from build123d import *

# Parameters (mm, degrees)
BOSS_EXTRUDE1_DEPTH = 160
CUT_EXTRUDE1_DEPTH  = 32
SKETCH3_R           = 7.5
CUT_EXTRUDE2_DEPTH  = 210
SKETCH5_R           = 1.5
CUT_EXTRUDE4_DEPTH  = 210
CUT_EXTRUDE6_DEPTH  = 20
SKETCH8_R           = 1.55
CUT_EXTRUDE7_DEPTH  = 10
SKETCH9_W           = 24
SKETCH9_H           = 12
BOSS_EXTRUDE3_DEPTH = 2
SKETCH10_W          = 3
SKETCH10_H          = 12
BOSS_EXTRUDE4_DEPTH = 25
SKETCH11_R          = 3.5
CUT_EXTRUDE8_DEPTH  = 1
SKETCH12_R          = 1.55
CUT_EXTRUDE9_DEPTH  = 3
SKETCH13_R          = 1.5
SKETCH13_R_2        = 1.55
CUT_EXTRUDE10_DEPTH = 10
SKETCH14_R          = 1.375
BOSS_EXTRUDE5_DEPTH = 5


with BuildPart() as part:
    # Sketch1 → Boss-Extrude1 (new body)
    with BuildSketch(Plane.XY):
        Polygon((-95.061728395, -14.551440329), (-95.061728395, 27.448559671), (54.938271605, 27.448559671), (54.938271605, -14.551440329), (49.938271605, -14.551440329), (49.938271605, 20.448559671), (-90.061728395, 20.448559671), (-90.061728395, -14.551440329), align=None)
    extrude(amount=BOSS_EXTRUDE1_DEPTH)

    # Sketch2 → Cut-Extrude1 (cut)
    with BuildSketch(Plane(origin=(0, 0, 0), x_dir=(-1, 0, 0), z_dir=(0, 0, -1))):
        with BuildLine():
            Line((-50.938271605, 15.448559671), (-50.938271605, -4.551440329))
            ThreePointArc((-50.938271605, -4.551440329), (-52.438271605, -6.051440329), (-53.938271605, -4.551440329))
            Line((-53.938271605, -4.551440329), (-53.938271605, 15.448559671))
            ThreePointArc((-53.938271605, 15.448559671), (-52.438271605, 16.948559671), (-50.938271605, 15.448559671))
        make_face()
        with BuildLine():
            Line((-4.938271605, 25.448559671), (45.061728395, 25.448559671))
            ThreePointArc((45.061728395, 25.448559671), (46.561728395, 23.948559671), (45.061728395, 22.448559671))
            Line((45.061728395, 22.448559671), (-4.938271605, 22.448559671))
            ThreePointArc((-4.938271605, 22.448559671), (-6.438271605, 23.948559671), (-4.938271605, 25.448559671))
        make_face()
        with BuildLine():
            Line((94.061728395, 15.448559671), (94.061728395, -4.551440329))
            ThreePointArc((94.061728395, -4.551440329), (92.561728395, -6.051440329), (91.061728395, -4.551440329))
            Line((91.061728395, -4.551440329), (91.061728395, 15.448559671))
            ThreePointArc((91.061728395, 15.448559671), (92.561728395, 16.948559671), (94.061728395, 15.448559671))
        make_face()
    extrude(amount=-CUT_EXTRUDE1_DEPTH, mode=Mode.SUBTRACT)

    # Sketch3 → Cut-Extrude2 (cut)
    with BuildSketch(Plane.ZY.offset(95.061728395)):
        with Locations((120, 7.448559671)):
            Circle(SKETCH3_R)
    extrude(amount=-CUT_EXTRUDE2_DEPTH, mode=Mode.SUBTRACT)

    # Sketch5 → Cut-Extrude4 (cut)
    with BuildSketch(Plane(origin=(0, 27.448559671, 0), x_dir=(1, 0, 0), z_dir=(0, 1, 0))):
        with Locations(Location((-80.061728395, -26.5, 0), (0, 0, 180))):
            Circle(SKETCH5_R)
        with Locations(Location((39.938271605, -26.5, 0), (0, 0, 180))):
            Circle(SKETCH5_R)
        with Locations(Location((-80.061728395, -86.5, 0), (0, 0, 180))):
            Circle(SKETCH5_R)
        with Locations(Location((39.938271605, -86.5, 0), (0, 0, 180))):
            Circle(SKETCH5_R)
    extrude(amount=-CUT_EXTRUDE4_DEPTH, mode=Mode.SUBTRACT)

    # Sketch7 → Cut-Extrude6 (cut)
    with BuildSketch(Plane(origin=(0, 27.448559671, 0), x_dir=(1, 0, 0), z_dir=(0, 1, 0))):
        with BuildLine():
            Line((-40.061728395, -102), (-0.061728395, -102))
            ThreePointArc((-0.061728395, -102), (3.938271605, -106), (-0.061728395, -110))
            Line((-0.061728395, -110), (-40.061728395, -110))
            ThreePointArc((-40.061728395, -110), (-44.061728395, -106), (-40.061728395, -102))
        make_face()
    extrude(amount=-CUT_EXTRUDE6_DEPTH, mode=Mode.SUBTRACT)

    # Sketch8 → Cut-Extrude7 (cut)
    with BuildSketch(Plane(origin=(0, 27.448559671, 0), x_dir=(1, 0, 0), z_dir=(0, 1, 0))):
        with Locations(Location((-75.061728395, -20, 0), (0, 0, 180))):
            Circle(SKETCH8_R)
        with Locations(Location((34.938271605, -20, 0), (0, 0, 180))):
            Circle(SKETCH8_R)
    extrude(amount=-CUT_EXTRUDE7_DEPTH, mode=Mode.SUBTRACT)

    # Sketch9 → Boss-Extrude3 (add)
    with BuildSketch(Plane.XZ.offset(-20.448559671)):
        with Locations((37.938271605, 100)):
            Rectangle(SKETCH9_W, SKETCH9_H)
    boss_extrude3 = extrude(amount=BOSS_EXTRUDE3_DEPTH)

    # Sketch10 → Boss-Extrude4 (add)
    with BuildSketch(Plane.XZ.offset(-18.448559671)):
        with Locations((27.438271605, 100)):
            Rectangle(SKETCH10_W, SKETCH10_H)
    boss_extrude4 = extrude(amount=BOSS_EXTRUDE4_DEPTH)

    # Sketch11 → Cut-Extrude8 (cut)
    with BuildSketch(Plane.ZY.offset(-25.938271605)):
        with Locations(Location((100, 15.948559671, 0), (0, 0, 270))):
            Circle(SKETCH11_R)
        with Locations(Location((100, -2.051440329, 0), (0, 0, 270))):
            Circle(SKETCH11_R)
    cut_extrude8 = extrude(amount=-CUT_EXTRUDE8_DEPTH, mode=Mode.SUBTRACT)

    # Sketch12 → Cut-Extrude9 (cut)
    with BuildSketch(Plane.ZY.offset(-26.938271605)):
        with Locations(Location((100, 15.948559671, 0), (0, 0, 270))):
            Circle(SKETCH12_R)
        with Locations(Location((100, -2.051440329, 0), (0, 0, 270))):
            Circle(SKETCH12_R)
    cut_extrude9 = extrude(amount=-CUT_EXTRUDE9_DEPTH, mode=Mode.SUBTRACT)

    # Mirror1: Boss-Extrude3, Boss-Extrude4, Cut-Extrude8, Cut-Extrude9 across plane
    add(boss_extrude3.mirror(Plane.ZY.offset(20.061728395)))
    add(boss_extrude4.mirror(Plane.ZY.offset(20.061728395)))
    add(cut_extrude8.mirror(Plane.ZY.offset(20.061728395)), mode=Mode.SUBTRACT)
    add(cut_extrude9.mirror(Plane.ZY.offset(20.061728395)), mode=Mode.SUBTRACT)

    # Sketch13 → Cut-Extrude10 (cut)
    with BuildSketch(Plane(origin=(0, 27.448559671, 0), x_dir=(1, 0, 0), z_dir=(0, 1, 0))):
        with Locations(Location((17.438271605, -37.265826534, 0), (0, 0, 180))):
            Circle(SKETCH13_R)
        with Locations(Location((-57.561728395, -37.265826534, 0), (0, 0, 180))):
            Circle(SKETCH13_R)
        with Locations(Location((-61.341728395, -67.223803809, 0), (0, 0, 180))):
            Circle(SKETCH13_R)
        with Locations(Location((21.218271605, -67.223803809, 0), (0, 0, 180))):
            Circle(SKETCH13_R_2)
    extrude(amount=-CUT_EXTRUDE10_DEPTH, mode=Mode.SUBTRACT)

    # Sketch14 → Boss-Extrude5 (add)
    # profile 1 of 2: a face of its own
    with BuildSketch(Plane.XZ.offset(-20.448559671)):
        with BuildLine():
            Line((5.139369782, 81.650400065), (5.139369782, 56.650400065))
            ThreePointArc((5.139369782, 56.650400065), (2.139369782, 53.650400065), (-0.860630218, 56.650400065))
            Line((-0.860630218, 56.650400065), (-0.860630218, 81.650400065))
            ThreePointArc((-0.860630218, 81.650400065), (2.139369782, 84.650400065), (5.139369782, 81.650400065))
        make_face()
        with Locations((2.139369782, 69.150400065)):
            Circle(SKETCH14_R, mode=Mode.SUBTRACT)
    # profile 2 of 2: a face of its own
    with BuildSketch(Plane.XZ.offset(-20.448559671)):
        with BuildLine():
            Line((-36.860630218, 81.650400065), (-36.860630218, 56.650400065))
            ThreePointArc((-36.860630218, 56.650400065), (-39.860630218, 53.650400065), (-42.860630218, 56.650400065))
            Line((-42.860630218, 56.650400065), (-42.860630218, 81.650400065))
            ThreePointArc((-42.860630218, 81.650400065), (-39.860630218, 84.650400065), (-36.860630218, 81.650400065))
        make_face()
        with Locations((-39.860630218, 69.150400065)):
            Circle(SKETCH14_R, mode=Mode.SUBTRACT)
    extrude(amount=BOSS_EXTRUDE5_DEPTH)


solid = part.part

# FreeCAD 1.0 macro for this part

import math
import FreeCAD as App
import Part
import Sketcher

doc = App.newDocument("Part")
body = doc.addObject("PartDesign::Body", "Body")

# Sketch on XY plane
sketch1 = body.newObject("Sketcher::SketchObject", "Sketch")
sketch1.AttachmentSupport = (doc.getObject("XY_Plane"), [""])
sketch1.MapMode = "FlatFace"
sketch1.addGeometry([
    Part.LineSegment(App.Vector(-95.061728, 27.44856, 0), App.Vector(-95.061728, -14.55144, 0)),  # 0
    Part.LineSegment(App.Vector(-95.061728, -14.55144, 0), App.Vector(-90.061728, -14.55144, 0)),  # 1
    Part.LineSegment(App.Vector(-90.061728, -14.55144, 0), App.Vector(-90.061728, 20.44856, 0)),  # 2
    Part.LineSegment(App.Vector(-90.061728, 20.44856, 0), App.Vector(49.938272, 20.44856, 0)),  # 3
    Part.LineSegment(App.Vector(49.938272, 20.44856, 0), App.Vector(49.938272, -14.55144, 0)),  # 4
    Part.LineSegment(App.Vector(49.938272, -14.55144, 0), App.Vector(54.938272, -14.55144, 0)),  # 5
    Part.LineSegment(App.Vector(54.938272, -14.55144, 0), App.Vector(54.938272, 27.44856, 0)),  # 6
    Part.LineSegment(App.Vector(54.938272, 27.44856, 0), App.Vector(-95.061728, 27.44856, 0)),  # 7
], False)
sketch1.addConstraint([
    Sketcher.Constraint("Coincident", 0, 2, 1, 1),
    Sketcher.Constraint("Coincident", 1, 2, 2, 1),
    Sketcher.Constraint("Coincident", 2, 2, 3, 1),
    Sketcher.Constraint("Coincident", 3, 2, 4, 1),
    Sketcher.Constraint("Coincident", 4, 2, 5, 1),
    Sketcher.Constraint("Coincident", 5, 2, 6, 1),
    Sketcher.Constraint("Coincident", 6, 2, 7, 1),
    Sketcher.Constraint("Coincident", 7, 2, 0, 1),
    Sketcher.Constraint("Vertical", 0),
    Sketcher.Constraint("Horizontal", 1),
    Sketcher.Constraint("Vertical", 2),
    Sketcher.Constraint("Horizontal", 3),
    Sketcher.Constraint("Vertical", 4),
    Sketcher.Constraint("Horizontal", 5),
    Sketcher.Constraint("Vertical", 6),
    Sketcher.Constraint("Horizontal", 7),
    Sketcher.Constraint("Horizontal", 1, 2, 4, 2),
    Sketcher.Constraint("Equal", 1, 5),
    Sketcher.Constraint("DistanceX", 1, 1, 1, 2, 5.0),
    Sketcher.Constraint("DistanceX", 3, 1, 3, 2, 140.0),
    Sketcher.Constraint("DistanceY", 0, 2, 0, 1, 42.0),
    Sketcher.Constraint("DistanceY", 2, 1, 2, 2, 35.0),
    Sketcher.Constraint("DistanceX", 0, 2, -1, 1, 95.061728),
    Sketcher.Constraint("DistanceY", 0, 2, -1, 1, 14.55144),
])
pad1 = body.newObject("PartDesign::Pad", "Pad")
pad1.Profile = sketch1
pad1.Length = 160

# Sketch on XY plane
sketch2 = body.newObject("Sketcher::SketchObject", "Sketch001")
sketch2.AttachmentSupport = (doc.getObject("XY_Plane"), [""])
sketch2.MapMode = "FlatFace"
sketch2.addGeometry([
    Part.LineSegment(App.Vector(50.938272, -4.55144, 0), App.Vector(50.938272, 15.44856, 0)),  # 0
    Part.ArcOfCircle(Part.Circle(App.Vector(52.438272, 15.44856, 0), App.Vector(0, 0, 1), 1.5), math.radians(0), math.radians(180)),  # 1
    Part.LineSegment(App.Vector(53.938272, 15.44856, 0), App.Vector(53.938272, -4.55144, 0)),  # 2
    Part.ArcOfCircle(Part.Circle(App.Vector(52.438272, -4.55144, 0), App.Vector(0, 0, 1), 1.5), math.radians(180), math.radians(360)),  # 3
    Part.LineSegment(App.Vector(-45.061728, 25.44856, 0), App.Vector(4.938272, 25.44856, 0)),  # 4
    Part.ArcOfCircle(Part.Circle(App.Vector(4.938272, 23.94856, 0), App.Vector(0, 0, 1), 1.5), math.radians(-90), math.radians(90)),  # 5
    Part.LineSegment(App.Vector(4.938272, 22.44856, 0), App.Vector(-45.061728, 22.44856, 0)),  # 6
    Part.ArcOfCircle(Part.Circle(App.Vector(-45.061728, 23.94856, 0), App.Vector(0, 0, 1), 1.5), math.radians(90), math.radians(270)),  # 7
    Part.LineSegment(App.Vector(-94.061728, -4.55144, 0), App.Vector(-94.061728, 15.44856, 0)),  # 8
    Part.ArcOfCircle(Part.Circle(App.Vector(-92.561728, 15.44856, 0), App.Vector(0, 0, 1), 1.5), math.radians(0), math.radians(180)),  # 9
    Part.LineSegment(App.Vector(-91.061728, 15.44856, 0), App.Vector(-91.061728, -4.55144, 0)),  # 10
    Part.ArcOfCircle(Part.Circle(App.Vector(-92.561728, -4.55144, 0), App.Vector(0, 0, 1), 1.5), math.radians(180), math.radians(360)),  # 11
], False)
sketch2.addConstraint([
    Sketcher.Constraint("Tangent", 0, 2, 1, 2),
    Sketcher.Constraint("Tangent", 1, 1, 2, 1),
    Sketcher.Constraint("Tangent", 2, 2, 3, 2),
    Sketcher.Constraint("Tangent", 3, 1, 0, 1),
    Sketcher.Constraint("Tangent", 4, 2, 5, 2),
    Sketcher.Constraint("Tangent", 5, 1, 6, 1),
    Sketcher.Constraint("Tangent", 6, 2, 7, 2),
    Sketcher.Constraint("Tangent", 7, 1, 4, 1),
    Sketcher.Constraint("Tangent", 8, 2, 9, 2),
    Sketcher.Constraint("Tangent", 9, 1, 10, 1),
    Sketcher.Constraint("Tangent", 10, 2, 11, 2),
    Sketcher.Constraint("Tangent", 11, 1, 8, 1),
    Sketcher.Constraint("Vertical", 0),
    Sketcher.Constraint("Vertical", 2),
    Sketcher.Constraint("Horizontal", 4),
    Sketcher.Constraint("Horizontal", 6),
    Sketcher.Constraint("Vertical", 8),
    Sketcher.Constraint("Vertical", 10),
    Sketcher.Constraint("Equal", 3, 5),
    Sketcher.Constraint("Equal", 7, 9),
    Sketcher.Constraint("Horizontal", 1, 3, 9, 3),
    Sketcher.Constraint("Horizontal", 3, 3, 11, 3),
    Sketcher.Constraint("Radius", 1, 1.5),
    Sketcher.Constraint("DistanceX", 4, 1, 4, 2, 50.0),
    Sketcher.Constraint("DistanceY", 0, 1, 0, 2, 20.0),
    Sketcher.Constraint("DistanceX", 9, 3, 1, 3, 145.0),
    Sketcher.Constraint("DistanceX", 5, 3, 0, 2, 46.0),
    Sketcher.Constraint("DistanceY", 0, 2, 4, 2, 10.0),
    Sketcher.Constraint("DistanceX", -1, 1, 1, 3, 52.438272),
    Sketcher.Constraint("DistanceY", -1, 1, 1, 3, 15.44856),
])
pocket1 = body.newObject("PartDesign::Pocket", "Pocket")
pocket1.Profile = sketch2
pocket1.Length = 32
pocket1.Reversed = True

# Sketch on YZ plane
sketch3 = body.newObject("Sketcher::SketchObject", "Sketch002")
sketch3.AttachmentSupport = (doc.getObject("YZ_Plane"), [""])
sketch3.MapMode = "FlatFace"
sketch3.AttachmentOffset = App.Placement(App.Vector(0, 0, -95.061728), App.Rotation())
sketch3.addGeometry(Part.Circle(App.Vector(7.44856, 120, 0), App.Vector(0, 0, 1), 7.5), False)
sketch3.addConstraint([
    Sketcher.Constraint("Diameter", 0, 15.0),
    Sketcher.Constraint("DistanceY", -1, 1, 0, 3, 120.0),
    Sketcher.Constraint("DistanceX", -1, 1, 0, 3, 7.44856),
])
pocket2 = body.newObject("PartDesign::Pocket", "Pocket001")
pocket2.Profile = sketch3
pocket2.Length = 210
pocket2.Reversed = True

# Sketch on XZ plane
sketch4 = body.newObject("Sketcher::SketchObject", "Sketch003")
sketch4.AttachmentSupport = (doc.getObject("XZ_Plane"), [""])
sketch4.MapMode = "FlatFace"
sketch4.AttachmentOffset = App.Placement(App.Vector(0, 0, -27.44856), App.Rotation())
sketch4.addGeometry([
    Part.Circle(App.Vector(-80.061728, 26.5, 0), App.Vector(0, 0, 1), 1.5),
    Part.Circle(App.Vector(39.938272, 26.5, 0), App.Vector(0, 0, 1), 1.5),
    Part.Circle(App.Vector(-80.061728, 86.5, 0), App.Vector(0, 0, 1), 1.5),
    Part.Circle(App.Vector(39.938272, 86.5, 0), App.Vector(0, 0, 1), 1.5),
], False)
sketch4.addConstraint([
    Sketcher.Constraint("Equal", 0, 1),
    Sketcher.Constraint("Equal", 1, 2),
    Sketcher.Constraint("Equal", 2, 3),
    Sketcher.Constraint("Horizontal", 0, 3, 1, 3),
    Sketcher.Constraint("Horizontal", 2, 3, 3, 3),
    Sketcher.Constraint("Vertical", 0, 3, 2, 3),
    Sketcher.Constraint("Vertical", 1, 3, 3, 3),
    Sketcher.Constraint("Diameter", 0, 3.0),
    Sketcher.Constraint("DistanceX", 0, 3, 1, 3, 120.0),
    Sketcher.Constraint("DistanceY", 0, 3, 2, 3, 60.0),
    Sketcher.Constraint("DistanceY", -1, 1, 0, 3, 26.5),
    Sketcher.Constraint("DistanceX", 0, 3, -1, 1, 80.061728),
])
pocket3 = body.newObject("PartDesign::Pocket", "Pocket002")
pocket3.Profile = sketch4
pocket3.Length = 210
pocket3.Reversed = True

# Sketch on XZ plane
sketch5 = body.newObject("Sketcher::SketchObject", "Sketch004")
sketch5.AttachmentSupport = (doc.getObject("XZ_Plane"), [""])
sketch5.MapMode = "FlatFace"
sketch5.AttachmentOffset = App.Placement(App.Vector(0, 0, -27.44856), App.Rotation())
sketch5.addGeometry([
    Part.LineSegment(App.Vector(-0.061728, 102, 0), App.Vector(-40.061728, 102, 0)),
    Part.ArcOfCircle(Part.Circle(App.Vector(-40.061728, 106, 0), App.Vector(0, 0, 1), 4), math.radians(90), math.radians(270)),
    Part.LineSegment(App.Vector(-40.061728, 110, 0), App.Vector(-0.061728, 110, 0)),
    Part.ArcOfCircle(Part.Circle(App.Vector(-0.061728, 106, 0), App.Vector(0, 0, 1), 4), math.radians(-90), math.radians(90)),
], False)
sketch5.addConstraint([
    Sketcher.Constraint("Tangent", 0, 2, 1, 2),
    Sketcher.Constraint("Tangent", 1, 1, 2, 1),
    Sketcher.Constraint("Tangent", 2, 2, 3, 2),
    Sketcher.Constraint("Tangent", 3, 1, 0, 1),
    Sketcher.Constraint("Horizontal", 0),
    Sketcher.Constraint("Horizontal", 2),
    Sketcher.Constraint("Radius", 1, 4.0),
    Sketcher.Constraint("DistanceX", 0, 2, 0, 1, 40.0),
    Sketcher.Constraint("DistanceY", -1, 1, 1, 3, 106.0),
    Sketcher.Constraint("DistanceX", 1, 3, -1, 1, 40.061728),
])
pocket4 = body.newObject("PartDesign::Pocket", "Pocket003")
pocket4.Profile = sketch5
pocket4.Length = 20
pocket4.Reversed = True

# Sketch on XZ plane
sketch6 = body.newObject("Sketcher::SketchObject", "Sketch005")
sketch6.AttachmentSupport = (doc.getObject("XZ_Plane"), [""])
sketch6.MapMode = "FlatFace"
sketch6.AttachmentOffset = App.Placement(App.Vector(0, 0, -27.44856), App.Rotation())
sketch6.addGeometry([
    Part.Circle(App.Vector(-75.061728, 20, 0), App.Vector(0, 0, 1), 1.55),
    Part.Circle(App.Vector(34.938272, 20, 0), App.Vector(0, 0, 1), 1.55),
], False)
sketch6.addConstraint([
    Sketcher.Constraint("Equal", 0, 1),
    Sketcher.Constraint("Horizontal", 0, 3, 1, 3),
    Sketcher.Constraint("Diameter", 0, 3.1),
    Sketcher.Constraint("DistanceY", -1, 1, 0, 3, 20.0),
    Sketcher.Constraint("DistanceX", 0, 3, 1, 3, 110.0),
    Sketcher.Constraint("DistanceX", 0, 3, -1, 1, 75.061728),
])
pocket5 = body.newObject("PartDesign::Pocket", "Pocket004")
pocket5.Profile = sketch6
pocket5.Length = 10
pocket5.Reversed = True

# Sketch on XZ plane
sketch7 = body.newObject("Sketcher::SketchObject", "Sketch006")
sketch7.AttachmentSupport = (doc.getObject("XZ_Plane"), [""])
sketch7.MapMode = "FlatFace"
sketch7.AttachmentOffset = App.Placement(App.Vector(0, 0, -20.44856), App.Rotation())
sketch7.addGeometry([
    Part.LineSegment(App.Vector(25.938272, 106, 0), App.Vector(25.938272, 94, 0)),
    Part.LineSegment(App.Vector(25.938272, 94, 0), App.Vector(49.938272, 94, 0)),
    Part.LineSegment(App.Vector(49.938272, 94, 0), App.Vector(49.938272, 106, 0)),
    Part.LineSegment(App.Vector(49.938272, 106, 0), App.Vector(25.938272, 106, 0)),
], False)
sketch7.addConstraint([
    Sketcher.Constraint("Coincident", 0, 2, 1, 1),
    Sketcher.Constraint("Coincident", 1, 2, 2, 1),
    Sketcher.Constraint("Coincident", 2, 2, 3, 1),
    Sketcher.Constraint("Coincident", 3, 2, 0, 1),
    Sketcher.Constraint("Vertical", 0),
    Sketcher.Constraint("Horizontal", 1),
    Sketcher.Constraint("Vertical", 2),
    Sketcher.Constraint("Horizontal", 3),
    Sketcher.Constraint("DistanceX", 1, 1, 1, 2, 24.0),
    Sketcher.Constraint("DistanceY", 0, 2, 0, 1, 12.0),
    Sketcher.Constraint("DistanceY", -1, 1, 0, 2, 94.0),
    Sketcher.Constraint("DistanceX", -1, 1, 0, 2, 25.938272),
])
pad2 = body.newObject("PartDesign::Pad", "Pad001")
pad2.Profile = sketch7
pad2.Length = 2

# Sketch on XZ plane
sketch8 = body.newObject("Sketcher::SketchObject", "Sketch007")
sketch8.AttachmentSupport = (doc.getObject("XZ_Plane"), [""])
sketch8.MapMode = "FlatFace"
sketch8.AttachmentOffset = App.Placement(App.Vector(0, 0, -18.44856), App.Rotation())
sketch8.addGeometry([
    Part.LineSegment(App.Vector(25.938272, 106, 0), App.Vector(25.938272, 94, 0)),
    Part.LineSegment(App.Vector(25.938272, 94, 0), App.Vector(28.938272, 94, 0)),
    Part.LineSegment(App.Vector(28.938272, 94, 0), App.Vector(28.938272, 106, 0)),
    Part.LineSegment(App.Vector(28.938272, 106, 0), App.Vector(25.938272, 106, 0)),
], False)
sketch8.addConstraint([
    Sketcher.Constraint("Coincident", 0, 2, 1, 1),
    Sketcher.Constraint("Coincident", 1, 2, 2, 1),
    Sketcher.Constraint("Coincident", 2, 2, 3, 1),
    Sketcher.Constraint("Coincident", 3, 2, 0, 1),
    Sketcher.Constraint("Vertical", 0),
    Sketcher.Constraint("Horizontal", 1),
    Sketcher.Constraint("Vertical", 2),
    Sketcher.Constraint("Horizontal", 3),
    Sketcher.Constraint("DistanceX", 1, 1, 1, 2, 3.0),
    Sketcher.Constraint("DistanceY", 0, 2, 0, 1, 12.0),
    Sketcher.Constraint("DistanceY", -1, 1, 0, 2, 94.0),
    Sketcher.Constraint("DistanceX", -1, 1, 0, 2, 25.938272),
])
pad3 = body.newObject("PartDesign::Pad", "Pad002")
pad3.Profile = sketch8
pad3.Length = 25

# Sketch on YZ plane
sketch9 = body.newObject("Sketcher::SketchObject", "Sketch008")
sketch9.AttachmentSupport = (doc.getObject("YZ_Plane"), [""])
sketch9.MapMode = "FlatFace"
sketch9.AttachmentOffset = App.Placement(App.Vector(0, 0, 25.938272), App.Rotation())
sketch9.addGeometry([
    Part.Circle(App.Vector(15.94856, 100, 0), App.Vector(0, 0, 1), 3.5),
    Part.Circle(App.Vector(-2.05144, 100, 0), App.Vector(0, 0, 1), 3.5),
], False)
sketch9.addConstraint([
    Sketcher.Constraint("Equal", 0, 1),
    Sketcher.Constraint("Horizontal", 0, 3, 1, 3),
    Sketcher.Constraint("Diameter", 0, 7.0),
    Sketcher.Constraint("DistanceY", -1, 1, 0, 3, 100.0),
    Sketcher.Constraint("DistanceX", 1, 3, 0, 3, 18.0),
    Sketcher.Constraint("DistanceX", -1, 1, 0, 3, 15.94856),
])
pocket6 = body.newObject("PartDesign::Pocket", "Pocket005")
pocket6.Profile = sketch9
pocket6.Length = 1
pocket6.Reversed = True

# Sketch on YZ plane
sketch10 = body.newObject("Sketcher::SketchObject", "Sketch009")
sketch10.AttachmentSupport = (doc.getObject("YZ_Plane"), [""])
sketch10.MapMode = "FlatFace"
sketch10.AttachmentOffset = App.Placement(App.Vector(0, 0, 26.938272), App.Rotation())
sketch10.addGeometry([
    Part.Circle(App.Vector(15.94856, 100, 0), App.Vector(0, 0, 1), 1.55),
    Part.Circle(App.Vector(-2.05144, 100, 0), App.Vector(0, 0, 1), 1.55),
], False)
sketch10.addConstraint([
    Sketcher.Constraint("Equal", 0, 1),
    Sketcher.Constraint("Horizontal", 0, 3, 1, 3),
    Sketcher.Constraint("Diameter", 0, 3.1),
    Sketcher.Constraint("DistanceY", -1, 1, 0, 3, 100.0),
    Sketcher.Constraint("DistanceX", 1, 3, 0, 3, 18.0),
    Sketcher.Constraint("DistanceX", -1, 1, 0, 3, 15.94856),
])
pocket7 = body.newObject("PartDesign::Pocket", "Pocket006")
pocket7.Profile = sketch10
pocket7.Length = 3
pocket7.Reversed = True
doc.recompute()

datumplane = body.newObject("PartDesign::Plane", "DatumPlane")
datumplane.AttachmentSupport = (doc.getObject("YZ_Plane"), [""])
datumplane.MapMode = "FlatFace"
datumplane.AttachmentOffset = App.Placement(App.Vector(0, 0, -20.061728), App.Rotation())
mirrored = body.newObject("PartDesign::Mirrored", "Mirrored")
mirrored.Originals = [pad2, pad3, pocket6, pocket7]
mirrored.MirrorPlane = (datumplane, [""])
body.Tip = mirrored

# Sketch on XZ plane
sketch11 = body.newObject("Sketcher::SketchObject", "Sketch010")
sketch11.AttachmentSupport = (doc.getObject("XZ_Plane"), [""])
sketch11.MapMode = "FlatFace"
sketch11.AttachmentOffset = App.Placement(App.Vector(0, 0, -27.44856), App.Rotation())
sketch11.addGeometry([
    Part.Circle(App.Vector(17.438272, 37.265827, 0), App.Vector(0, 0, 1), 1.5),
    Part.Circle(App.Vector(-57.561728, 37.265827, 0), App.Vector(0, 0, 1), 1.5),
    Part.Circle(App.Vector(-61.341728, 67.223804, 0), App.Vector(0, 0, 1), 1.5),
    Part.Circle(App.Vector(21.218272, 67.223804, 0), App.Vector(0, 0, 1), 1.55),
], False)
sketch11.addConstraint([
    Sketcher.Constraint("Equal", 0, 1),
    Sketcher.Constraint("Equal", 1, 2),
    Sketcher.Constraint("Horizontal", 0, 3, 1, 3),
    Sketcher.Constraint("Horizontal", 2, 3, 3, 3),
    Sketcher.Constraint("Diameter", 0, 3.0),
    Sketcher.Constraint("Diameter", 3, 3.1),
    Sketcher.Constraint("DistanceX", 1, 3, 0, 3, 75.0),
    Sketcher.Constraint("DistanceX", 2, 3, 1, 3, 3.78),
    Sketcher.Constraint("DistanceX", 0, 3, 3, 3, 3.78),
    Sketcher.Constraint("DistanceX", -1, 1, 0, 3, 17.438272),
    Sketcher.Constraint("DistanceY", -1, 1, 0, 3, 37.265827),
    Sketcher.Constraint("DistanceY", -1, 1, 2, 3, 67.223804),
])
pocket8 = body.newObject("PartDesign::Pocket", "Pocket007")
pocket8.Profile = sketch11
pocket8.Length = 10
pocket8.Reversed = True

# Sketch on XZ plane
sketch12 = body.newObject("Sketcher::SketchObject", "Sketch011")
sketch12.AttachmentSupport = (doc.getObject("XZ_Plane"), [""])
sketch12.MapMode = "FlatFace"
sketch12.AttachmentOffset = App.Placement(App.Vector(0, 0, -20.44856), App.Rotation())
sketch12.addGeometry([
    Part.LineSegment(App.Vector(5.13937, 56.6504, 0), App.Vector(5.13937, 81.6504, 0)),  # 0
    Part.ArcOfCircle(Part.Circle(App.Vector(2.13937, 81.6504, 0), App.Vector(0, 0, 1), 3), math.radians(0), math.radians(180)),  # 1
    Part.LineSegment(App.Vector(-0.86063, 81.6504, 0), App.Vector(-0.86063, 56.6504, 0)),  # 2
    Part.ArcOfCircle(Part.Circle(App.Vector(2.13937, 56.6504, 0), App.Vector(0, 0, 1), 3), math.radians(180), math.radians(360)),  # 3
    Part.Circle(App.Vector(2.13937, 69.1504, 0), App.Vector(0, 0, 1), 1.375),  # 4
    Part.LineSegment(App.Vector(-36.86063, 56.6504, 0), App.Vector(-36.86063, 81.6504, 0)),  # 5
    Part.ArcOfCircle(Part.Circle(App.Vector(-39.86063, 81.6504, 0), App.Vector(0, 0, 1), 3), math.radians(0), math.radians(180)),  # 6
    Part.LineSegment(App.Vector(-42.86063, 81.6504, 0), App.Vector(-42.86063, 56.6504, 0)),  # 7
    Part.ArcOfCircle(Part.Circle(App.Vector(-39.86063, 56.6504, 0), App.Vector(0, 0, 1), 3), math.radians(180), math.radians(360)),  # 8
    Part.Circle(App.Vector(-39.86063, 69.1504, 0), App.Vector(0, 0, 1), 1.375),  # 9
], False)
sketch12.addConstraint([
    Sketcher.Constraint("Tangent", 0, 2, 1, 1),
    Sketcher.Constraint("Tangent", 1, 2, 2, 1),
    Sketcher.Constraint("Tangent", 2, 2, 3, 1),
    Sketcher.Constraint("Tangent", 3, 2, 0, 1),
    Sketcher.Constraint("Tangent", 5, 2, 6, 1),
    Sketcher.Constraint("Tangent", 6, 2, 7, 1),
    Sketcher.Constraint("Tangent", 7, 2, 8, 1),
    Sketcher.Constraint("Tangent", 8, 2, 5, 1),
    Sketcher.Constraint("Vertical", 0),
    Sketcher.Constraint("Vertical", 2),
    Sketcher.Constraint("Vertical", 5),
    Sketcher.Constraint("Vertical", 7),
    Sketcher.Constraint("Equal", 3, 6),
    Sketcher.Constraint("Equal", 4, 9),
    Sketcher.Constraint("Horizontal", 1, 3, 6, 3),
    Sketcher.Constraint("Horizontal", 3, 3, 8, 3),
    Sketcher.Constraint("Horizontal", 4, 3, 9, 3),
    Sketcher.Constraint("Vertical", 3, 3, 4, 3),
    Sketcher.Constraint("Vertical", 8, 3, 9, 3),
    Sketcher.Constraint("Radius", 1, 3.0),
    Sketcher.Constraint("Diameter", 4, 2.75),
    Sketcher.Constraint("DistanceY", 0, 1, 0, 2, 25.0),
    Sketcher.Constraint("DistanceX", 6, 3, 1, 3, 42.0),
    Sketcher.Constraint("DistanceY", 4, 3, 1, 3, 12.5),
    Sketcher.Constraint("DistanceY", -1, 1, 1, 3, 81.6504),
    Sketcher.Constraint("DistanceX", -1, 1, 1, 3, 2.13937),
])
pad4 = body.newObject("PartDesign::Pad", "Pad003")
pad4.Profile = sketch12
pad4.Length = 5

doc.recompute()
